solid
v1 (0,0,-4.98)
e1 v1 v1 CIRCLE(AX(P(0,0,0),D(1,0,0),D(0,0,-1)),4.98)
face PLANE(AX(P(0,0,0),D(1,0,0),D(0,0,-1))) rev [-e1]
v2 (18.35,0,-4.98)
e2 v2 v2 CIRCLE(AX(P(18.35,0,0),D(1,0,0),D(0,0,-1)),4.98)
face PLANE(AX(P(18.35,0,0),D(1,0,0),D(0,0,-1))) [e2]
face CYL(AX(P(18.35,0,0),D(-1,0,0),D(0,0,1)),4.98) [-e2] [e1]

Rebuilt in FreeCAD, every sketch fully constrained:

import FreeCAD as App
import Part
import Sketcher

V = App.Vector

doc = App.newDocument("Part")
params = doc.addObject("Spreadsheet::Sheet", "Params")
for row, (alias, value) in enumerate([
    ("sketch1_diameter", "9.96 mm"),
    ("pad1_length", "18.35 mm"),
], start=1):
    params.set(f"A{row}", alias)
    params.set(f"B{row}", "=" + value)
    params.setAlias(f"B{row}", alias)

body = doc.addObject("PartDesign::Body", "Body")

# Sketch on YZ plane
sketch1 = body.newObject("Sketcher::SketchObject", "Sketch")
sketch1.AttachmentSupport = (doc.getObject("YZ_Plane"), [""])
sketch1.MapMode = "FlatFace"
sketch1.addGeometry(Part.Circle(V(0, 0, 0), V(0, 0, 1), 5), False)
sketch1.addConstraint([
    Sketcher.Constraint("Coincident", 0, 3, -1, 1),
    Sketcher.Constraint("Diameter", 0, 9.96),
])
sketch1.setExpression("Constraints[1]", "Params.sketch1_diameter")
pad1 = body.newObject("PartDesign::Pad", "Pad")
pad1.Profile = sketch1
pad1.setExpression("Length", "Params.pad1_length")

doc.recompute()
